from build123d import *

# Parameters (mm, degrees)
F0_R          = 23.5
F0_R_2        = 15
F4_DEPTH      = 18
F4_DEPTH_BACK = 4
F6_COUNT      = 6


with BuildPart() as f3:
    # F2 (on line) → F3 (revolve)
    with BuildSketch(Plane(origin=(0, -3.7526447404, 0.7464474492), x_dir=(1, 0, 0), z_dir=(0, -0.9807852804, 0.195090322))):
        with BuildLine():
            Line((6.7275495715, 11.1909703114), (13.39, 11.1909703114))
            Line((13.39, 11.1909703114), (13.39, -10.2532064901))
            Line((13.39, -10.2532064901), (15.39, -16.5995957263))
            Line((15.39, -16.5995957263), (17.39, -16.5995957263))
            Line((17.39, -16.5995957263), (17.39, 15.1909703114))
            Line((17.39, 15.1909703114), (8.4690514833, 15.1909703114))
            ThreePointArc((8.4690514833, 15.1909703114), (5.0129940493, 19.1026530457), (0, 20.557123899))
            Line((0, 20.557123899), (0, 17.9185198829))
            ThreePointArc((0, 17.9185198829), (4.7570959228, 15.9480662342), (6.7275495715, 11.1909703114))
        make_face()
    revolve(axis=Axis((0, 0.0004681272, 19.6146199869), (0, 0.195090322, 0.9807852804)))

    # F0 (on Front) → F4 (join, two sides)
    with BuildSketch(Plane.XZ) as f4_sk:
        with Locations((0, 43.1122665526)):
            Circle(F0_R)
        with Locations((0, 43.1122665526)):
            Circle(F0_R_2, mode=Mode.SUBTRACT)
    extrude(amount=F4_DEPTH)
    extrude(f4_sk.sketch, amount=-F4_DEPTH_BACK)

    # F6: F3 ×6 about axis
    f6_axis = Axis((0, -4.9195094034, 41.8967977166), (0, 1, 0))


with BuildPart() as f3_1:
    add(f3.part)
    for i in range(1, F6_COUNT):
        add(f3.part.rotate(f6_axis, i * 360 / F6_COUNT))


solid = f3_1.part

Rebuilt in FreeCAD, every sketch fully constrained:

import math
import FreeCAD as App
import Part
import Sketcher

doc = App.newDocument("Part")
body = doc.addObject("PartDesign::Body", "Body")

sketch1 = body.newObject("Sketcher::SketchObject", "Sketch")
sketch1.Placement = App.Placement(App.Vector(0, -3.752645, 0.746447), App.Rotation(App.Vector(1, 0, 0), App.Vector(0, 0.195090322, 0.98078528), App.Vector(0, -0.98078528, 0.195090322), "ZXY"))
sketch1.addGeometry([
    Part.LineSegment(App.Vector(6.72755, 11.19097, 0), App.Vector(13.39, 11.19097, 0)),
    Part.LineSegment(App.Vector(13.39, 11.19097, 0), App.Vector(13.39, -10.253206, 0)),
    Part.LineSegment(App.Vector(13.39, -10.253206, 0), App.Vector(15.39, -16.599596, 0)),
    Part.LineSegment(App.Vector(15.39, -16.599596, 0), App.Vector(17.39, -16.599596, 0)),
    Part.LineSegment(App.Vector(17.39, -16.599596, 0), App.Vector(17.39, 15.19097, 0)),
    Part.LineSegment(App.Vector(17.39, 15.19097, 0), App.Vector(8.469051, 15.19097, 0)),
    Part.ArcOfCircle(Part.Circle(App.Vector(0, 11.19097, 0), App.Vector(0, 0, 1), 9.366154), math.radians(25.281736), math.radians(90)),
    Part.LineSegment(App.Vector(0, 20.557124, 0), App.Vector(0, 17.91852, 0)),
    Part.ArcOfCircle(Part.Circle(App.Vector(0, 11.19097, 0), App.Vector(0, 0, 1), 6.72755), math.radians(0), math.radians(90)),
], False)
sketch1.addConstraint([
    Sketcher.Constraint("Coincident", 0, 2, 1, 1),
    Sketcher.Constraint("Coincident", 1, 2, 2, 1),
    Sketcher.Constraint("Coincident", 2, 2, 3, 1),
    Sketcher.Constraint("Coincident", 3, 2, 4, 1),
    Sketcher.Constraint("Coincident", 4, 2, 5, 1),
    Sketcher.Constraint("Coincident", 5, 2, 6, 1),
    Sketcher.Constraint("Coincident", 6, 2, 7, 1),
    Sketcher.Constraint("Coincident", 7, 2, 8, 2),
    Sketcher.Constraint("Coincident", 8, 1, 0, 1),
    Sketcher.Constraint("Horizontal", 0),
    Sketcher.Constraint("Vertical", 1),
    Sketcher.Constraint("Horizontal", 3),
    Sketcher.Constraint("Vertical", 4),
    Sketcher.Constraint("Horizontal", 5),
    Sketcher.Constraint("Vertical", 7),
    Sketcher.Constraint("Coincident", 8, 3, 6, 3),
    Sketcher.Constraint("PointOnObject", 6, 3, -2),
    Sketcher.Constraint("PointOnObject", 6, 2, -2),
    Sketcher.Constraint("Horizontal", 8, 3, 0, 2),
    Sketcher.Constraint("DistanceX", 3, 1, 3, 2, 2.0),
    Sketcher.Constraint("DistanceX", 1, 2, 2, 2, 2.0),
    Sketcher.Constraint("DistanceY", 0, 2, 4, 2, 4.0),
    Sketcher.Constraint("DistanceX", -1, 1, 0, 2, 13.39),
    Sketcher.Constraint("Radius", 8, 6.72755),
    Sketcher.Constraint("Radius", 6, 9.366154),
    Sketcher.Constraint("Distance", 2, 6.654071),
    Sketcher.Constraint("DistanceY", 1, 2, 1, 1, 21.444177),
    Sketcher.Constraint("DistanceY", -1, 1, 6, 3, 11.19097),
])
revolution = body.newObject("PartDesign::Revolution", "Revolution")
revolution.Profile = sketch1
revolution.ReferenceAxis = (sketch1, ["V_Axis"])
revolution.Angle = 360

sketch2 = body.newObject("Sketcher::SketchObject", "Sketch001")
sketch2.AttachmentSupport = (doc.getObject("XZ_Plane"), [""])
sketch2.MapMode = "FlatFace"
sketch2.addGeometry([
    Part.Circle(App.Vector(0, 43.112267, 0), App.Vector(0, 0, 1), 23.5),
    Part.Circle(App.Vector(0, 43.112267, 0), App.Vector(0, 0, 1), 15),
], False)
sketch2.addConstraint([
    Sketcher.Constraint("Coincident", 1, 3, 0, 3),
    Sketcher.Constraint("PointOnObject", 0, 3, -2),
    Sketcher.Constraint("Diameter", 0, 47.0),
    Sketcher.Constraint("Diameter", 1, 30.0),
    Sketcher.Constraint("DistanceY", -1, 1, 0, 3, 43.112267),
])
pad1 = body.newObject("PartDesign::Pad", "Pad")
pad1.Profile = sketch2
pad1.Type = "TwoLengths"
pad1.Length = 18
pad1.Length2 = 4
body2 = doc.addObject("PartDesign::Body", "Body001")
doc.recompute()

body2.BaseFeature = body
doc.recompute()

body3 = doc.addObject("PartDesign::Body", "Body002")
body3.BaseFeature = body
body3.Placement = App.Placement(App.Vector(-36.283691, 0, 20.948399), App.Rotation(App.Vector(0, 1, 0), 60))
boolean = body2.newObject("PartDesign::Boolean", "Boolean")
boolean.Type = "Fuse"
boolean.addObjects([body3])
doc.recompute()

body4 = doc.addObject("PartDesign::Body", "Body003")
body4.BaseFeature = body
body4.Placement = App.Placement(App.Vector(-36.283691, 0, 62.845197), App.Rotation(App.Vector(0, 1, 0), 120))
boolean2 = body2.newObject("PartDesign::Boolean", "Boolean001")
boolean2.Type = "Fuse"
boolean2.addObjects([body4])
doc.recompute()

body5 = doc.addObject("PartDesign::Body", "Body004")
body5.BaseFeature = body
body5.Placement = App.Placement(App.Vector(0, 0, 83.793595), App.Rotation(App.Vector(0, 1, 0), 180))
boolean3 = body2.newObject("PartDesign::Boolean", "Boolean002")
boolean3.Type = "Fuse"
boolean3.addObjects([body5])
doc.recompute()

body6 = doc.addObject("PartDesign::Body", "Body005")
body6.BaseFeature = body
body6.Placement = App.Placement(App.Vector(36.283691, 0, 62.845197), App.Rotation(App.Vector(0, 1, 0), 240))
boolean4 = body2.newObject("PartDesign::Boolean", "Boolean003")
boolean4.Type = "Fuse"
boolean4.addObjects([body6])
doc.recompute()

body.Placement = App.Placement(App.Vector(36.283691, 0, 20.948399), App.Rotation(App.Vector(0, 1, 0), 300))
boolean5 = body2.newObject("PartDesign::Boolean", "Boolean004")
boolean5.Type = "Fuse"
boolean5.addObjects([body])

doc.recompute()
